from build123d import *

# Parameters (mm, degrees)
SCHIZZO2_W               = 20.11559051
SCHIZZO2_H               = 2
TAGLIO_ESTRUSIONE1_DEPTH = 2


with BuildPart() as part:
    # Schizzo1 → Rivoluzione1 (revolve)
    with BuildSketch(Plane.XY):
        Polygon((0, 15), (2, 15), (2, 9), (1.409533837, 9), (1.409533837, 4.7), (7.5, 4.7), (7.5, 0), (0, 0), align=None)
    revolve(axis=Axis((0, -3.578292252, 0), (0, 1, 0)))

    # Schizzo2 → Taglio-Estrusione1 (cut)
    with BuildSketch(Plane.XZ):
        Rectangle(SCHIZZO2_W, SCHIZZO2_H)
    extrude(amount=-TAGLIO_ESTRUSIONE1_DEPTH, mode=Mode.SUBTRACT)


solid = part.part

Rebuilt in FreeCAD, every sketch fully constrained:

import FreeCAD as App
import Part
import Sketcher
Q = App.Units.Quantity


def add_polygon(sketch, points):
    """Adds a closed chain of lines whose ends are joined by coincident constraints."""
    first, n = sketch.GeometryCount, len(points)
    for a, b in zip(points, points[1:] + points[:1]):
        sketch.addGeometry(Part.LineSegment(App.Vector(*a, 0), App.Vector(*b, 0)), False)
    for i in range(n):
        sketch.addConstraint(Sketcher.Constraint("Coincident", first + i, 2, first + (i + 1) % n, 1))

doc = App.newDocument("Part")
body = doc.addObject("PartDesign::Body", "Body")

# Sketch on XY plane
sketch1 = body.newObject("Sketcher::SketchObject", "Sketch")
sketch1.AttachmentSupport = (doc.getObject("XY_Plane"), [""])
sketch1.MapMode = "FlatFace"
add_polygon(sketch1, [(2, 15), (0, 15), (0, 0), (7.5, 0), (7.5, 4.7), (1.409534, 4.7), (1.409534, 9), (2, 9)])  # lines 0-7
sketch1.addConstraint(Sketcher.Constraint("Horizontal", 0))
sketch1.addConstraint(Sketcher.Constraint("Vertical", 1))
sketch1.addConstraint(Sketcher.Constraint("Horizontal", 2))
sketch1.addConstraint(Sketcher.Constraint("Vertical", 3))
sketch1.addConstraint(Sketcher.Constraint("Horizontal", 4))
sketch1.addConstraint(Sketcher.Constraint("Vertical", 5))
sketch1.addConstraint(Sketcher.Constraint("Horizontal", 6))
sketch1.addConstraint(Sketcher.Constraint("Vertical", 7))
sketch1.addConstraint(Sketcher.Constraint("Coincident", 1, 2, -1, 1))
sketch1.addConstraint(Sketcher.Constraint("DistanceX", 0, 2, 0, 1, Q("2 mm")))
sketch1.addConstraint(Sketcher.Constraint("DistanceY", 1, 2, 1, 1, Q("15 mm")))
sketch1.addConstraint(Sketcher.Constraint("DistanceY", 7, 1, 7, 2, Q("6 mm")))
sketch1.addConstraint(Sketcher.Constraint("DistanceX", 2, 1, 2, 2, Q("7.5 mm")))
sketch1.addConstraint(Sketcher.Constraint("DistanceY", 3, 1, 3, 2, Q("4.7 mm")))
sketch1.addConstraint(Sketcher.Constraint("DistanceX", 4, 2, 4, 1, Q("6.090466 mm")))
revolution = body.newObject("PartDesign::Revolution", "Revolution")
revolution.Profile = sketch1
revolution.ReferenceAxis = (sketch1, ["V_Axis"])
revolution.Angle = 360

# Sketch on XZ plane
sketch2 = body.newObject("Sketcher::SketchObject", "Sketch001")
sketch2.AttachmentSupport = (doc.getObject("XZ_Plane"), [""])
sketch2.MapMode = "FlatFace"
add_polygon(sketch2, [(-10.057795, 1), (-10.057795, -1), (10.057795, -1), (10.057795, 1)])  # lines 0-3
sketch2.addConstraint(Sketcher.Constraint("Vertical", 0))
sketch2.addConstraint(Sketcher.Constraint("Horizontal", 1))
sketch2.addConstraint(Sketcher.Constraint("Vertical", 2))
sketch2.addConstraint(Sketcher.Constraint("Horizontal", 3))
sketch2.addConstraint(Sketcher.Constraint("Symmetric", 0, 2, 2, 2, -1, 1))
sketch2.addConstraint(Sketcher.Constraint("DistanceY", 0, 2, 0, 1, Q("2 mm")))
sketch2.addConstraint(Sketcher.Constraint("DistanceX", 1, 1, 1, 2, Q("20.115591 mm")))
pocket1 = body.newObject("PartDesign::Pocket", "Pocket")
pocket1.Profile = sketch2
pocket1.Length = 2

doc.recompute()
